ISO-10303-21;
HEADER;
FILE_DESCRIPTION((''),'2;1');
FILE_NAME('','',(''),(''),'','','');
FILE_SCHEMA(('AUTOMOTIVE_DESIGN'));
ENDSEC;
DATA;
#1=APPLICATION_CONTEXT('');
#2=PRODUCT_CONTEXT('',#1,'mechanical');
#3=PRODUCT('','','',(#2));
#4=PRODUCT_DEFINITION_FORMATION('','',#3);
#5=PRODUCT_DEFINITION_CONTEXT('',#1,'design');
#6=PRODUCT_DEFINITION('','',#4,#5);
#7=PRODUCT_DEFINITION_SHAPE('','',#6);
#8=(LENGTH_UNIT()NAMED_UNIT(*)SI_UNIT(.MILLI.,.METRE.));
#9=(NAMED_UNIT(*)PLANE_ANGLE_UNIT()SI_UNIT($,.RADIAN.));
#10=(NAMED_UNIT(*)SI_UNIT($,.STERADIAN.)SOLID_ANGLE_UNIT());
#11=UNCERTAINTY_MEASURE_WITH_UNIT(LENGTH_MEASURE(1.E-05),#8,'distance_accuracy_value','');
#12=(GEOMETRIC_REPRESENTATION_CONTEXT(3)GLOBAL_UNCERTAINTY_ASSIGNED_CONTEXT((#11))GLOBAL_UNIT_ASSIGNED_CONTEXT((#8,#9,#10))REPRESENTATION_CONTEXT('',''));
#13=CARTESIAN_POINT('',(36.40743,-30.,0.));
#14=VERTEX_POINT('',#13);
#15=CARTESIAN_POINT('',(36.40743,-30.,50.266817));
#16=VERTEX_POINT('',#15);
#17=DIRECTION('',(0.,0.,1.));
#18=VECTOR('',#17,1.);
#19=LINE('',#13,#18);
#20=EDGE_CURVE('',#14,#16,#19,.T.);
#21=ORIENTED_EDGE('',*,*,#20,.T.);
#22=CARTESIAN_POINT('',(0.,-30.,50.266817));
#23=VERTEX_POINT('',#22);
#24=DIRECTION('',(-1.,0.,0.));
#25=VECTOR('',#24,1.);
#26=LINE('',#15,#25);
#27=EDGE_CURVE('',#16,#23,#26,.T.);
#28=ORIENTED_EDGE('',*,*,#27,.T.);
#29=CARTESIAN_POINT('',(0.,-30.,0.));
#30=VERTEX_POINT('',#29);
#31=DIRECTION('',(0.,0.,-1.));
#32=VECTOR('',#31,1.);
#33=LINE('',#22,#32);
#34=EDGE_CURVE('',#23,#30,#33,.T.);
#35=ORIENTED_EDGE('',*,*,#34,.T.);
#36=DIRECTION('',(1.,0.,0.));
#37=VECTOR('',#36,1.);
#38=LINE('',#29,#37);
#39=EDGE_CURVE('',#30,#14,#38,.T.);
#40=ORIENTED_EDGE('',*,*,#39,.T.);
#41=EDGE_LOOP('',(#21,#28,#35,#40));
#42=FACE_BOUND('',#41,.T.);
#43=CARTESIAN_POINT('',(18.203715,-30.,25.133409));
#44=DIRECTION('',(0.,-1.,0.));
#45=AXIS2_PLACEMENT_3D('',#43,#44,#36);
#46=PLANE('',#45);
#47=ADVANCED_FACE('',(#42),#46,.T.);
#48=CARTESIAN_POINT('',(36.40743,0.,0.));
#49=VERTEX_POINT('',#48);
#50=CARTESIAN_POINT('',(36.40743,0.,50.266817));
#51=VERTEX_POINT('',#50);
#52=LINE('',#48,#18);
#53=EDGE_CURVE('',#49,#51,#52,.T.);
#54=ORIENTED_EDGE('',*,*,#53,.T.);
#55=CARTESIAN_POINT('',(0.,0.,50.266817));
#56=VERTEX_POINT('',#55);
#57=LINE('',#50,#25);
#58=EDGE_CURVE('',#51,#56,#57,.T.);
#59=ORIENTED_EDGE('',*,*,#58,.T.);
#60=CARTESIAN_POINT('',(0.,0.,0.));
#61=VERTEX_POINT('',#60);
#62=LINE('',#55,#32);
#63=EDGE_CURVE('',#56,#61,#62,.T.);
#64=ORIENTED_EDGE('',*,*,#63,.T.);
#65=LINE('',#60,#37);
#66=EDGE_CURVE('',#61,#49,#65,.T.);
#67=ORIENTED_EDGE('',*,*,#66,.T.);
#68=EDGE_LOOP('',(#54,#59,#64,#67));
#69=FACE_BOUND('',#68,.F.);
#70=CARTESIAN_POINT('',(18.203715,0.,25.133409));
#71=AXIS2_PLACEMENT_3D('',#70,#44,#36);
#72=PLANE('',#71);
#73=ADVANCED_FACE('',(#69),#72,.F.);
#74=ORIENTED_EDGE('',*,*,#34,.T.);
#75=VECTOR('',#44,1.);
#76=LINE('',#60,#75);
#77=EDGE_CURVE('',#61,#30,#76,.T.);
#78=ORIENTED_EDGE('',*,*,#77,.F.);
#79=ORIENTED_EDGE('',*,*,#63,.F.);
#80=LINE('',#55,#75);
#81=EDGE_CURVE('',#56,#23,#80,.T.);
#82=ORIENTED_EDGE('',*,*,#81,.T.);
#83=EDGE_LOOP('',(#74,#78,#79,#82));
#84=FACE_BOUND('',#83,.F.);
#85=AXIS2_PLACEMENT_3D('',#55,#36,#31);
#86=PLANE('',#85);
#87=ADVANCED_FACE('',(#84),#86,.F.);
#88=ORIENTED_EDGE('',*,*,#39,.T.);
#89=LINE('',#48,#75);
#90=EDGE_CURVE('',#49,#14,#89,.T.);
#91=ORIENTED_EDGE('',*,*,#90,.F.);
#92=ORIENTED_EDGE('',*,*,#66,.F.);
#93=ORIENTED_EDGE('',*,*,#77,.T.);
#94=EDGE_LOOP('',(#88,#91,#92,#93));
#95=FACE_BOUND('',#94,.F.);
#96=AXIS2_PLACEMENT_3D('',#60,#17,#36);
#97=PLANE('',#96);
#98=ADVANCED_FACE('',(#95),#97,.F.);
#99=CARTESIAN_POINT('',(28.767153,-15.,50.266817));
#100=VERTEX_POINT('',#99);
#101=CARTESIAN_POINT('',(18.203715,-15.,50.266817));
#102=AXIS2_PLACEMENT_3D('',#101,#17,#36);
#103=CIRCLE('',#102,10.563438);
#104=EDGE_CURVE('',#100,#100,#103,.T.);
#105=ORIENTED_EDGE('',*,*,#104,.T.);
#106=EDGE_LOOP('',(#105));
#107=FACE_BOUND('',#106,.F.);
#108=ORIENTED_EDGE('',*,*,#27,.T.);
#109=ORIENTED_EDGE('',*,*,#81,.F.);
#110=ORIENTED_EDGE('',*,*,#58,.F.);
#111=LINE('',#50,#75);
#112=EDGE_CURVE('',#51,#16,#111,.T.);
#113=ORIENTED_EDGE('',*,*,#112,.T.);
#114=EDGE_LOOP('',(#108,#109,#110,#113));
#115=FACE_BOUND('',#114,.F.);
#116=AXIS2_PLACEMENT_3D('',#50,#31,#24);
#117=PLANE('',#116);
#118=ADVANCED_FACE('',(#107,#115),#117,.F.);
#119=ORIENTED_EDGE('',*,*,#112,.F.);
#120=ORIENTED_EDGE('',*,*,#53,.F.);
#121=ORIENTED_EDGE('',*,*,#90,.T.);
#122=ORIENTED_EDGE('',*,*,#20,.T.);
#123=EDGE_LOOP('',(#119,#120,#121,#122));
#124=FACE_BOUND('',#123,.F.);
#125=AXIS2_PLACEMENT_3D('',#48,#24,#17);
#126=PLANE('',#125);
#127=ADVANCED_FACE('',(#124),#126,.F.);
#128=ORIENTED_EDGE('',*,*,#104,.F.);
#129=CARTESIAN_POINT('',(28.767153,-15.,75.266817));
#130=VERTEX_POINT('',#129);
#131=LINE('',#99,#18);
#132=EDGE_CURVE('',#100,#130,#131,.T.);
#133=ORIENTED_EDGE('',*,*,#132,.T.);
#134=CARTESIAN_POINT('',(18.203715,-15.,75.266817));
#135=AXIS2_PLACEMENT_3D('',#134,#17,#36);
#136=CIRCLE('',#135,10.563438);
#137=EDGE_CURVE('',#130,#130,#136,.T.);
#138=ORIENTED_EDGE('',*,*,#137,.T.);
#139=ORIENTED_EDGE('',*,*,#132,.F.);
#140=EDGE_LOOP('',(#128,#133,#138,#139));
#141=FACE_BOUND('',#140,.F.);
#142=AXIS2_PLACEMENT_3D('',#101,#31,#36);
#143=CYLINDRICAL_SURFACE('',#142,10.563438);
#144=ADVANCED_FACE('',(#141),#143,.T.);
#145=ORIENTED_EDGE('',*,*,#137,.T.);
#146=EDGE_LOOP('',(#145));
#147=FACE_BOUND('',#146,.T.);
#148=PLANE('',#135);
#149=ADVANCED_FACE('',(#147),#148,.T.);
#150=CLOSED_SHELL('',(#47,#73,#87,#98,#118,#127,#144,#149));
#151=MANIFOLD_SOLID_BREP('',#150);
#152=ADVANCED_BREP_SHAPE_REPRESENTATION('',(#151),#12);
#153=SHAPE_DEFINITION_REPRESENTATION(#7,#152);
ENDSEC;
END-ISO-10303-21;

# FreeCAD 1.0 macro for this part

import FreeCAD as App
import Part
import Sketcher
Q = App.Units.Quantity


def add_polygon(sketch, points):
    """Adds a closed chain of lines whose ends are joined by coincident constraints."""
    first, n = sketch.GeometryCount, len(points)
    for a, b in zip(points, points[1:] + points[:1]):
        sketch.addGeometry(Part.LineSegment(App.Vector(*a, 0), App.Vector(*b, 0)), False)
    for i in range(n):
        sketch.addConstraint(Sketcher.Constraint("Coincident", first + i, 2, first + (i + 1) % n, 1))

doc = App.newDocument("Part")
body = doc.addObject("PartDesign::Body", "Body")

# Sketch on XZ plane
sketch1 = body.newObject("Sketcher::SketchObject", "Sketch")
sketch1.AttachmentSupport = (doc.getObject("XZ_Plane"), [""])
sketch1.MapMode = "FlatFace"
add_polygon(sketch1, [(0, 50), (0, 0), (36, 0), (36, 50)])  # lines 0-3
sketch1.addConstraint([
    Sketcher.Constraint("Vertical", 0),
    Sketcher.Constraint("Horizontal", 1),
    Sketcher.Constraint("Vertical", 2),
    Sketcher.Constraint("Horizontal", 3),
    Sketcher.Constraint("Coincident", 0, 2, -1, 1),
    Sketcher.Constraint("DistanceX", 1, 1, 1, 2, Q("36.40743 mm")),
    Sketcher.Constraint("DistanceY", 0, 2, 0, 1, Q("50.266817 mm")),
])
pad1 = body.newObject("PartDesign::Pad", "Pad")
pad1.Profile = sketch1
pad1.Length = 30

# Sketch on XY plane
sketch2 = body.newObject("Sketcher::SketchObject", "Sketch001")
sketch2.AttachmentSupport = (doc.getObject("XY_Plane"), [""])
sketch2.MapMode = "FlatFace"
sketch2.AttachmentOffset = App.Placement(App.Vector(0, 0, 50.266817), App.Rotation())
sketch2.addGeometry(Part.Circle(App.Vector(18, -15, 0), App.Vector(0, 0, 1), 11), False)
sketch2.addConstraint([
    Sketcher.Constraint("DistanceY", 0, 3, -1, 1, Q("15 mm")),
    Sketcher.Constraint("Diameter", 0, Q("21.126876 mm")),
    Sketcher.Constraint("DistanceX", -1, 1, 0, 3, Q("18.203715 mm")),
])
pad2 = body.newObject("PartDesign::Pad", "Pad001")
pad2.Profile = sketch2
pad2.Length = 25

doc.recompute()
